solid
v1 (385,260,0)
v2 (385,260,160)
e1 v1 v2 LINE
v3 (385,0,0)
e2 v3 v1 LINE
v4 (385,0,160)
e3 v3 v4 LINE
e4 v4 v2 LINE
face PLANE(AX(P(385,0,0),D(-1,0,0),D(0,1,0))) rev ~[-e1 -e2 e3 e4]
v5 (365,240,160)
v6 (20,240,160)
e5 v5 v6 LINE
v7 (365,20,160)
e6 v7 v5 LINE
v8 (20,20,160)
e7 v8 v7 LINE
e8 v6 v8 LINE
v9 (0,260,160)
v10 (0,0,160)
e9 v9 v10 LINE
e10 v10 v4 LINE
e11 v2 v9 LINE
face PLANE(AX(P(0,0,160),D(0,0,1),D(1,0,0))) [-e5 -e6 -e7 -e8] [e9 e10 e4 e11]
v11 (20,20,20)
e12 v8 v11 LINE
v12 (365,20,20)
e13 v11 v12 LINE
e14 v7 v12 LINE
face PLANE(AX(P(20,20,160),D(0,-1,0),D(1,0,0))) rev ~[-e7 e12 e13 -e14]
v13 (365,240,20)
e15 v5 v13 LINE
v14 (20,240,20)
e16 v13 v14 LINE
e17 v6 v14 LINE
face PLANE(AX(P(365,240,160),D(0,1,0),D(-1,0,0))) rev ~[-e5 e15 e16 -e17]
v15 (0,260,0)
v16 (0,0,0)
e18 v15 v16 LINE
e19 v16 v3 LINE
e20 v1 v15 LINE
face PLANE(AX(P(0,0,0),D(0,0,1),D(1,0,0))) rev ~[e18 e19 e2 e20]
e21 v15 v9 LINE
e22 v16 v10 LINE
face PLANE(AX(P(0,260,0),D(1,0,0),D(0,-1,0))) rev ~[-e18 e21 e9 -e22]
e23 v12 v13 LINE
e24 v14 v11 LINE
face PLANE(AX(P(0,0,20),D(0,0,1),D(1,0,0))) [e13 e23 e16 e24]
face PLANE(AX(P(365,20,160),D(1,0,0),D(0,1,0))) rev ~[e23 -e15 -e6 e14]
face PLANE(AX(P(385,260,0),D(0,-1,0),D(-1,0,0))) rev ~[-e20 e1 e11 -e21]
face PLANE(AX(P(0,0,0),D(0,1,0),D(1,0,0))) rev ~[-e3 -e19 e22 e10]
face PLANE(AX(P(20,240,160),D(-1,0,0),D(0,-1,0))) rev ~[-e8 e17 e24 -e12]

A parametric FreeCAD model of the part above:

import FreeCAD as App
import Part
import Sketcher
from FreeCAD import Vector


def add_polygon(sketch, points):
    """Adds a closed chain of lines whose ends are joined by coincident constraints."""
    first, n = sketch.GeometryCount, len(points)
    for a, b in zip(points, points[1:] + points[:1]):
        sketch.addGeometry(Part.LineSegment(App.Vector(*a, 0), App.Vector(*b, 0)), False)
    for i in range(n):
        sketch.addConstraint(Sketcher.Constraint("Coincident", first + i, 2, first + (i + 1) % n, 1))

doc = App.newDocument("Part")
params = doc.addObject("Spreadsheet::Sheet", "Params")
for row, (alias, value) in enumerate([
    ("sketch1_width", "385 mm"),
    ("sketch1_height", "260 mm"),
    ("pad1_length", "160 mm"),
    ("sketch2_width", "345 mm"),
    ("sketch2_height", "220 mm"),
    ("pocket1_length", "140 mm"),
], start=1):
    params.set(f"A{row}", alias)
    params.set(f"B{row}", "=" + value)
    params.setAlias(f"B{row}", alias)

body = doc.addObject("PartDesign::Body", "Body")

sketch1 = body.newObject("Sketcher::SketchObject", "Sketch")
sketch1.AttachmentSupport = (doc.getObject("XY_Plane"), [""])
sketch1.MapMode = "FlatFace"
add_polygon(sketch1, [(0, 260), (0, 0), (385, 0), (385, 260)])
sketch1.addConstraint([
    Sketcher.Constraint("Vertical", 0),
    Sketcher.Constraint("Horizontal", 1),
    Sketcher.Constraint("Vertical", 2),
    Sketcher.Constraint("Horizontal", 3),
    Sketcher.Constraint("Coincident", 0, 2, -1, 1),
    Sketcher.Constraint("DistanceX", 1, 1, 1, 2, 385.0),
    Sketcher.Constraint("DistanceY", 0, 2, 0, 1, 260.0),
])
sketch1.setExpression("Constraints[9]", "Params.sketch1_width")
sketch1.setExpression("Constraints[10]", "Params.sketch1_height")
pad1 = body.newObject("PartDesign::Pad", "Pad")
pad1.Profile = sketch1
pad1.setExpression("Length", "Params.pad1_length")

sketch2 = body.newObject("Sketcher::SketchObject", "Sketch001")
sketch2.AttachmentSupport = (doc.getObject("XY_Plane"), [""])
sketch2.MapMode = "FlatFace"
sketch2.AttachmentOffset = App.Placement(Vector(0, 0, 160), App.Rotation())
add_polygon(sketch2, [(20, 240), (20, 20), (365, 20), (365, 240)])
sketch2.addConstraint([
    Sketcher.Constraint("Vertical", 0),
    Sketcher.Constraint("Horizontal", 1),
    Sketcher.Constraint("Vertical", 2),
    Sketcher.Constraint("Horizontal", 3),
    Sketcher.Constraint("DistanceX", -1, 1, 0, 2, 20.0),
    Sketcher.Constraint("DistanceY", -1, 1, 0, 2, 20.0),
    Sketcher.Constraint("DistanceX", 1, 1, 1, 2, 345.0),
    Sketcher.Constraint("DistanceY", 0, 2, 0, 1, 220.0),
])
sketch2.setExpression("Constraints[10]", "Params.sketch2_width")
sketch2.setExpression("Constraints[11]", "Params.sketch2_height")
pocket1 = body.newObject("PartDesign::Pocket", "Pocket")
pocket1.Profile = sketch2
pocket1.setExpression("Length", "Params.pocket1_length")

doc.recompute()
